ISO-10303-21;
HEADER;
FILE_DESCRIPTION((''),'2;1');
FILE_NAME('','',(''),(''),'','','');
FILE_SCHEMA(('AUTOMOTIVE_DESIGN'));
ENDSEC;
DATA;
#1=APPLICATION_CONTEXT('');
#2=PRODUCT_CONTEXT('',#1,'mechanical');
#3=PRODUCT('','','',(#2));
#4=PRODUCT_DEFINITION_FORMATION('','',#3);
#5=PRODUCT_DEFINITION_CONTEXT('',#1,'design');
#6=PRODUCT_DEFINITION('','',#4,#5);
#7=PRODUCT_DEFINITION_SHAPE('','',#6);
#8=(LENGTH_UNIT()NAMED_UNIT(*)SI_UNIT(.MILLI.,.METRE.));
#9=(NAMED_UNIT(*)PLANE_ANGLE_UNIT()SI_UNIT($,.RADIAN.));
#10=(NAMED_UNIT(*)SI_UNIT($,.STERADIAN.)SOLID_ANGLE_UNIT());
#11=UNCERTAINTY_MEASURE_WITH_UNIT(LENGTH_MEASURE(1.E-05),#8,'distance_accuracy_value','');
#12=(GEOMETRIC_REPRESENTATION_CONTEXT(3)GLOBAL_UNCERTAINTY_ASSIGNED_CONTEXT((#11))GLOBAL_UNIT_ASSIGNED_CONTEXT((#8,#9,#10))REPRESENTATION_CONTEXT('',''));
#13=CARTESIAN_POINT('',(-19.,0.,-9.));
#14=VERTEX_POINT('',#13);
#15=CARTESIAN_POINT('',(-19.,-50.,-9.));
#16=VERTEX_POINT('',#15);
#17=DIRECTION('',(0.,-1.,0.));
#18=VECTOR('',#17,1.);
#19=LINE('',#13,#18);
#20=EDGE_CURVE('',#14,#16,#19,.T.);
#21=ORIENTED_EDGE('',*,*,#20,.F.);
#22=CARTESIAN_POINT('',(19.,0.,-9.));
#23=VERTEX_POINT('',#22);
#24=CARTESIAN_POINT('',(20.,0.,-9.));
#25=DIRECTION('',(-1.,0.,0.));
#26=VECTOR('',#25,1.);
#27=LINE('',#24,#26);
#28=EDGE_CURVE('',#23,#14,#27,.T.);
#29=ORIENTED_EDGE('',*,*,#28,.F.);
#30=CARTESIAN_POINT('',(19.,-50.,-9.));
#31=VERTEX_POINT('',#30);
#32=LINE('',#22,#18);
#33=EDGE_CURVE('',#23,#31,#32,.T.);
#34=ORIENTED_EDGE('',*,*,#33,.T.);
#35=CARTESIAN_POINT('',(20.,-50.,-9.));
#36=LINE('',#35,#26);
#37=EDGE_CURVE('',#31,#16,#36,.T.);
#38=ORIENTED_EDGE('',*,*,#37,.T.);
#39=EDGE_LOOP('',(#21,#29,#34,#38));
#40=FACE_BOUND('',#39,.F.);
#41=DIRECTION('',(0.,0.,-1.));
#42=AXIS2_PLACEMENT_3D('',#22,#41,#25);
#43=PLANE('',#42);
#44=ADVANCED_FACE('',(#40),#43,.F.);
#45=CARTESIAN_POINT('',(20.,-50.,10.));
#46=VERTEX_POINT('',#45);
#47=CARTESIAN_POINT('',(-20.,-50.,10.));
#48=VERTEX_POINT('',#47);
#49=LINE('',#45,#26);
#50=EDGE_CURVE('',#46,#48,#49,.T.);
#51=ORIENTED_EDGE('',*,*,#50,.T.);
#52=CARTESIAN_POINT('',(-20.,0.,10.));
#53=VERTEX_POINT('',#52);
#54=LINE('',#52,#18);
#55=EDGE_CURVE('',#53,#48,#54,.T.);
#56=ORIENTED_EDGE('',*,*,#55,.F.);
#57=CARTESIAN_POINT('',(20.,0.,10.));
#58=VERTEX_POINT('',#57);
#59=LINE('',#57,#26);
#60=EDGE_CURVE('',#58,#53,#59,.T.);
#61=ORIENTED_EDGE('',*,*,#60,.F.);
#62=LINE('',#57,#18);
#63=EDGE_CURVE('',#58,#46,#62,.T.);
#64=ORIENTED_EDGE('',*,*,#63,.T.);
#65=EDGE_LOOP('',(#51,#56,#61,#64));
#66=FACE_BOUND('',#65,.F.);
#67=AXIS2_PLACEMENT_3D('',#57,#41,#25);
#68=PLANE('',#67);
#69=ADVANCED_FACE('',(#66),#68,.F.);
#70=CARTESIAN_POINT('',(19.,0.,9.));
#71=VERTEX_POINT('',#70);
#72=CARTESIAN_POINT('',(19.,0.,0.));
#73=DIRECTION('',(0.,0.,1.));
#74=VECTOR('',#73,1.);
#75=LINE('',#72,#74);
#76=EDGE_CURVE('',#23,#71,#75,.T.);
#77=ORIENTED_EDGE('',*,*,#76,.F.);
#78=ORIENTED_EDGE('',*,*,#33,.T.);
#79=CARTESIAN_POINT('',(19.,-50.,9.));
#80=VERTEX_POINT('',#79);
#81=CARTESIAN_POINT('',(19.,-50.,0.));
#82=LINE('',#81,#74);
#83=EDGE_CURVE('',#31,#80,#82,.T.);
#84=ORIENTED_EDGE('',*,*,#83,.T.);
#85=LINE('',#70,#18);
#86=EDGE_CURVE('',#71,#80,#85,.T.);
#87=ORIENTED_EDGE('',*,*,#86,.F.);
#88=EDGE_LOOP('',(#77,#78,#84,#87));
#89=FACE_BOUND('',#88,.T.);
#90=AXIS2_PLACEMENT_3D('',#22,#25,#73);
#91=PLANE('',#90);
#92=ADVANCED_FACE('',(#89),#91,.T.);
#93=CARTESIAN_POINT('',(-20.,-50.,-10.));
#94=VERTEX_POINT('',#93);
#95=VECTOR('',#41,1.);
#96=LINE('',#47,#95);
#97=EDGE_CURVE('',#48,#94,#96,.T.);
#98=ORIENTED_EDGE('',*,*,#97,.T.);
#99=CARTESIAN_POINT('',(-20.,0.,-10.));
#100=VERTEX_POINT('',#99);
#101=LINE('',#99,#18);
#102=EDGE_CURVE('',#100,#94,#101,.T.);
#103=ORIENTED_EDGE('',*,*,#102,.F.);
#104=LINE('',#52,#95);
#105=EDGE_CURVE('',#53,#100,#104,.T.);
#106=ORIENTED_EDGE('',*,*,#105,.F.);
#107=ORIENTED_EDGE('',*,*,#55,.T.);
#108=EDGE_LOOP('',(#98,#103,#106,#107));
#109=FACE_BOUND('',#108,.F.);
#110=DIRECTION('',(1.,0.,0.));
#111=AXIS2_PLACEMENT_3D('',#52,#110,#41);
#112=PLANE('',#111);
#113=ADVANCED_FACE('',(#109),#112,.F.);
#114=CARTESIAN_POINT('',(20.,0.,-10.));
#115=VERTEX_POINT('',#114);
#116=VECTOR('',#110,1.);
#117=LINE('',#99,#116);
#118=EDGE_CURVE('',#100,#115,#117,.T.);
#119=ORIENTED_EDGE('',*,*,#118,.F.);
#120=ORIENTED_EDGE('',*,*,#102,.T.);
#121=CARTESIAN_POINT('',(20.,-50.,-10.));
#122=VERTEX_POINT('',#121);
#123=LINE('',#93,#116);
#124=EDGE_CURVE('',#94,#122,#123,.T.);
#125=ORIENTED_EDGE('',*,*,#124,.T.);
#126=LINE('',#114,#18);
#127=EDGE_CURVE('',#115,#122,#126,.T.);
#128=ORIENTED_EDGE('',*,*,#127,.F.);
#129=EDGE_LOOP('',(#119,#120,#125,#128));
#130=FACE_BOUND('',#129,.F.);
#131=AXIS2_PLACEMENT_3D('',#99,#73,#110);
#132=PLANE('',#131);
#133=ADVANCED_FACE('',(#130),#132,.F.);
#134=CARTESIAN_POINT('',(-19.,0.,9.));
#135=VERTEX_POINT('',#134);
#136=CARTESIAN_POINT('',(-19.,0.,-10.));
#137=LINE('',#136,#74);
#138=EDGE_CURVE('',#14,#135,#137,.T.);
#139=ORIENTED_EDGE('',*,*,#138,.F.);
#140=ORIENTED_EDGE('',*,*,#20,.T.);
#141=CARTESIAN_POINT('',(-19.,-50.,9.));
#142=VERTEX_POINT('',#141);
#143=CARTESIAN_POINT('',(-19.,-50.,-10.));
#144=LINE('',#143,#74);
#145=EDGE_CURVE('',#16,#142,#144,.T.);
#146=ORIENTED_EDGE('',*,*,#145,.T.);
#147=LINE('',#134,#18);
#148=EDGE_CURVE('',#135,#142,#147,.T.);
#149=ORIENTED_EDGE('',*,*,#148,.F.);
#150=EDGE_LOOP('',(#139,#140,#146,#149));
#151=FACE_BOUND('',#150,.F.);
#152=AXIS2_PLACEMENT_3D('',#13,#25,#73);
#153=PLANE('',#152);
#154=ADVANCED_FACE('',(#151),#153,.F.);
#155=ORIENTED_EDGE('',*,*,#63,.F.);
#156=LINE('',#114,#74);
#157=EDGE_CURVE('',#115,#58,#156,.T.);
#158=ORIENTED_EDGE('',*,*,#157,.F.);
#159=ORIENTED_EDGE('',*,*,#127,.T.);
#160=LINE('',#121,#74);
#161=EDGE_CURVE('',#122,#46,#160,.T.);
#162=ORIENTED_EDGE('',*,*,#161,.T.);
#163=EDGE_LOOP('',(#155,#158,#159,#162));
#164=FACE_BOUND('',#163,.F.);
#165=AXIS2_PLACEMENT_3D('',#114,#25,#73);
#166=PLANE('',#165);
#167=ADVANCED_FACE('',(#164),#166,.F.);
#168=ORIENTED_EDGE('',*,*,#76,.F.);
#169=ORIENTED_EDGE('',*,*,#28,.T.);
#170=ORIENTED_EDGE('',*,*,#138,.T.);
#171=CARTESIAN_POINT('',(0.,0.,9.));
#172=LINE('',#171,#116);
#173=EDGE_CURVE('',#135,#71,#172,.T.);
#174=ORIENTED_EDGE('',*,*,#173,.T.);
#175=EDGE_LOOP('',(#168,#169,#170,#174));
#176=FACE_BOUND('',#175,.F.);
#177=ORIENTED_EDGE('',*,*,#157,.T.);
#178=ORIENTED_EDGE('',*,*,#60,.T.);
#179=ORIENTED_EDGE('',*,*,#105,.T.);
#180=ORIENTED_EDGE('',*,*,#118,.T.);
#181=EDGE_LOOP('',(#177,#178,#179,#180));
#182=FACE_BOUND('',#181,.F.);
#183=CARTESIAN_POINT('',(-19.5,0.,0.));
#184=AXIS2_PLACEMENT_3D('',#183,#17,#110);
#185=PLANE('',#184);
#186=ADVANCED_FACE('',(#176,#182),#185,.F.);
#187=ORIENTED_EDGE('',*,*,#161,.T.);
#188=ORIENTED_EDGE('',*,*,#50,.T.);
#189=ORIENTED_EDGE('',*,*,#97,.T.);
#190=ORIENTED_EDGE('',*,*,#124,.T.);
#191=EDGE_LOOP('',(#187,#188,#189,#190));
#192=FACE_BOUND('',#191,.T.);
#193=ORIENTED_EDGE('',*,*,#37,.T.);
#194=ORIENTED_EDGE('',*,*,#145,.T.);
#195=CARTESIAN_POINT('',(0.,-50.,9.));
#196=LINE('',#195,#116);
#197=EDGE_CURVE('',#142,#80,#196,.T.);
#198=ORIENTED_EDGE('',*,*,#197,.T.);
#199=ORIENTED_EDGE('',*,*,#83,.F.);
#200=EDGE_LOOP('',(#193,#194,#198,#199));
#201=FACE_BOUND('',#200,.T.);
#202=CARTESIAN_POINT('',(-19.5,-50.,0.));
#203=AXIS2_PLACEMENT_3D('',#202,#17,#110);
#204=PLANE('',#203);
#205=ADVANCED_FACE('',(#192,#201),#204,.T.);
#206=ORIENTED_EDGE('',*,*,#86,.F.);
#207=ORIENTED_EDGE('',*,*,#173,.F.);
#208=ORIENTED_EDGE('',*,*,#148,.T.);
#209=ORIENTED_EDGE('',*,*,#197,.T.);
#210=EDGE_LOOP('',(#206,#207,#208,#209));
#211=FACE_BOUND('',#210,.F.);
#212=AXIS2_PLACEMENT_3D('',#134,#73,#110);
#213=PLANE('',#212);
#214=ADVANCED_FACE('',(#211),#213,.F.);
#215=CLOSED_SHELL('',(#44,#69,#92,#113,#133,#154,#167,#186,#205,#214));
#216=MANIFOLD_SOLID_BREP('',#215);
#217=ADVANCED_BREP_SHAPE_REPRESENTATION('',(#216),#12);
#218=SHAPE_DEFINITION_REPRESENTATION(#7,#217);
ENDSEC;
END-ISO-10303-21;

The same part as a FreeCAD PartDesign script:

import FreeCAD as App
import Part
import Sketcher

V = App.Vector


def add_polygon(sketch, points):
    """Adds a closed chain of lines whose ends are joined by coincident constraints."""
    first, n = sketch.GeometryCount, len(points)
    for a, b in zip(points, points[1:] + points[:1]):
        sketch.addGeometry(Part.LineSegment(App.Vector(*a, 0), App.Vector(*b, 0)), False)
    for i in range(n):
        sketch.addConstraint(Sketcher.Constraint("Coincident", first + i, 2, first + (i + 1) % n, 1))

doc = App.newDocument("Part")
body = doc.addObject("PartDesign::Body", "Body")

# Sketch on XZ plane
sketch1 = body.newObject("Sketcher::SketchObject", "Sketch")
sketch1.AttachmentSupport = (doc.getObject("XZ_Plane"), [""])
sketch1.MapMode = "FlatFace"
add_polygon(sketch1, [(20, -10), (20, 10), (-20, 10), (-20, -10)])  # lines 0-3
add_polygon(sketch1, [(19, 9), (19, -9), (-19, -9), (-19, 9)])  # lines 4-7
sketch1.addConstraint([
    Sketcher.Constraint("Vertical", 0),
    Sketcher.Constraint("Horizontal", 1),
    Sketcher.Constraint("Vertical", 2),
    Sketcher.Constraint("Horizontal", 3),
    Sketcher.Constraint("Vertical", 4),
    Sketcher.Constraint("Horizontal", 5),
    Sketcher.Constraint("Vertical", 6),
    Sketcher.Constraint("Horizontal", 7),
    Sketcher.Constraint("Symmetric", 0, 2, 2, 2, -1, 1),
    Sketcher.Constraint("Symmetric", 4, 2, 6, 2, -1, 1),
    Sketcher.Constraint("DistanceX", 1, 2, 1, 1, 40.0),
    Sketcher.Constraint("DistanceX", 5, 2, 5, 1, 38.0),
    Sketcher.Constraint("DistanceY", 0, 1, 0, 2, 20.0),
    Sketcher.Constraint("DistanceY", 4, 2, 4, 1, 18.0),
])
pad1 = body.newObject("PartDesign::Pad", "Pad")
pad1.Profile = sketch1
pad1.Length = 50

doc.recompute()
